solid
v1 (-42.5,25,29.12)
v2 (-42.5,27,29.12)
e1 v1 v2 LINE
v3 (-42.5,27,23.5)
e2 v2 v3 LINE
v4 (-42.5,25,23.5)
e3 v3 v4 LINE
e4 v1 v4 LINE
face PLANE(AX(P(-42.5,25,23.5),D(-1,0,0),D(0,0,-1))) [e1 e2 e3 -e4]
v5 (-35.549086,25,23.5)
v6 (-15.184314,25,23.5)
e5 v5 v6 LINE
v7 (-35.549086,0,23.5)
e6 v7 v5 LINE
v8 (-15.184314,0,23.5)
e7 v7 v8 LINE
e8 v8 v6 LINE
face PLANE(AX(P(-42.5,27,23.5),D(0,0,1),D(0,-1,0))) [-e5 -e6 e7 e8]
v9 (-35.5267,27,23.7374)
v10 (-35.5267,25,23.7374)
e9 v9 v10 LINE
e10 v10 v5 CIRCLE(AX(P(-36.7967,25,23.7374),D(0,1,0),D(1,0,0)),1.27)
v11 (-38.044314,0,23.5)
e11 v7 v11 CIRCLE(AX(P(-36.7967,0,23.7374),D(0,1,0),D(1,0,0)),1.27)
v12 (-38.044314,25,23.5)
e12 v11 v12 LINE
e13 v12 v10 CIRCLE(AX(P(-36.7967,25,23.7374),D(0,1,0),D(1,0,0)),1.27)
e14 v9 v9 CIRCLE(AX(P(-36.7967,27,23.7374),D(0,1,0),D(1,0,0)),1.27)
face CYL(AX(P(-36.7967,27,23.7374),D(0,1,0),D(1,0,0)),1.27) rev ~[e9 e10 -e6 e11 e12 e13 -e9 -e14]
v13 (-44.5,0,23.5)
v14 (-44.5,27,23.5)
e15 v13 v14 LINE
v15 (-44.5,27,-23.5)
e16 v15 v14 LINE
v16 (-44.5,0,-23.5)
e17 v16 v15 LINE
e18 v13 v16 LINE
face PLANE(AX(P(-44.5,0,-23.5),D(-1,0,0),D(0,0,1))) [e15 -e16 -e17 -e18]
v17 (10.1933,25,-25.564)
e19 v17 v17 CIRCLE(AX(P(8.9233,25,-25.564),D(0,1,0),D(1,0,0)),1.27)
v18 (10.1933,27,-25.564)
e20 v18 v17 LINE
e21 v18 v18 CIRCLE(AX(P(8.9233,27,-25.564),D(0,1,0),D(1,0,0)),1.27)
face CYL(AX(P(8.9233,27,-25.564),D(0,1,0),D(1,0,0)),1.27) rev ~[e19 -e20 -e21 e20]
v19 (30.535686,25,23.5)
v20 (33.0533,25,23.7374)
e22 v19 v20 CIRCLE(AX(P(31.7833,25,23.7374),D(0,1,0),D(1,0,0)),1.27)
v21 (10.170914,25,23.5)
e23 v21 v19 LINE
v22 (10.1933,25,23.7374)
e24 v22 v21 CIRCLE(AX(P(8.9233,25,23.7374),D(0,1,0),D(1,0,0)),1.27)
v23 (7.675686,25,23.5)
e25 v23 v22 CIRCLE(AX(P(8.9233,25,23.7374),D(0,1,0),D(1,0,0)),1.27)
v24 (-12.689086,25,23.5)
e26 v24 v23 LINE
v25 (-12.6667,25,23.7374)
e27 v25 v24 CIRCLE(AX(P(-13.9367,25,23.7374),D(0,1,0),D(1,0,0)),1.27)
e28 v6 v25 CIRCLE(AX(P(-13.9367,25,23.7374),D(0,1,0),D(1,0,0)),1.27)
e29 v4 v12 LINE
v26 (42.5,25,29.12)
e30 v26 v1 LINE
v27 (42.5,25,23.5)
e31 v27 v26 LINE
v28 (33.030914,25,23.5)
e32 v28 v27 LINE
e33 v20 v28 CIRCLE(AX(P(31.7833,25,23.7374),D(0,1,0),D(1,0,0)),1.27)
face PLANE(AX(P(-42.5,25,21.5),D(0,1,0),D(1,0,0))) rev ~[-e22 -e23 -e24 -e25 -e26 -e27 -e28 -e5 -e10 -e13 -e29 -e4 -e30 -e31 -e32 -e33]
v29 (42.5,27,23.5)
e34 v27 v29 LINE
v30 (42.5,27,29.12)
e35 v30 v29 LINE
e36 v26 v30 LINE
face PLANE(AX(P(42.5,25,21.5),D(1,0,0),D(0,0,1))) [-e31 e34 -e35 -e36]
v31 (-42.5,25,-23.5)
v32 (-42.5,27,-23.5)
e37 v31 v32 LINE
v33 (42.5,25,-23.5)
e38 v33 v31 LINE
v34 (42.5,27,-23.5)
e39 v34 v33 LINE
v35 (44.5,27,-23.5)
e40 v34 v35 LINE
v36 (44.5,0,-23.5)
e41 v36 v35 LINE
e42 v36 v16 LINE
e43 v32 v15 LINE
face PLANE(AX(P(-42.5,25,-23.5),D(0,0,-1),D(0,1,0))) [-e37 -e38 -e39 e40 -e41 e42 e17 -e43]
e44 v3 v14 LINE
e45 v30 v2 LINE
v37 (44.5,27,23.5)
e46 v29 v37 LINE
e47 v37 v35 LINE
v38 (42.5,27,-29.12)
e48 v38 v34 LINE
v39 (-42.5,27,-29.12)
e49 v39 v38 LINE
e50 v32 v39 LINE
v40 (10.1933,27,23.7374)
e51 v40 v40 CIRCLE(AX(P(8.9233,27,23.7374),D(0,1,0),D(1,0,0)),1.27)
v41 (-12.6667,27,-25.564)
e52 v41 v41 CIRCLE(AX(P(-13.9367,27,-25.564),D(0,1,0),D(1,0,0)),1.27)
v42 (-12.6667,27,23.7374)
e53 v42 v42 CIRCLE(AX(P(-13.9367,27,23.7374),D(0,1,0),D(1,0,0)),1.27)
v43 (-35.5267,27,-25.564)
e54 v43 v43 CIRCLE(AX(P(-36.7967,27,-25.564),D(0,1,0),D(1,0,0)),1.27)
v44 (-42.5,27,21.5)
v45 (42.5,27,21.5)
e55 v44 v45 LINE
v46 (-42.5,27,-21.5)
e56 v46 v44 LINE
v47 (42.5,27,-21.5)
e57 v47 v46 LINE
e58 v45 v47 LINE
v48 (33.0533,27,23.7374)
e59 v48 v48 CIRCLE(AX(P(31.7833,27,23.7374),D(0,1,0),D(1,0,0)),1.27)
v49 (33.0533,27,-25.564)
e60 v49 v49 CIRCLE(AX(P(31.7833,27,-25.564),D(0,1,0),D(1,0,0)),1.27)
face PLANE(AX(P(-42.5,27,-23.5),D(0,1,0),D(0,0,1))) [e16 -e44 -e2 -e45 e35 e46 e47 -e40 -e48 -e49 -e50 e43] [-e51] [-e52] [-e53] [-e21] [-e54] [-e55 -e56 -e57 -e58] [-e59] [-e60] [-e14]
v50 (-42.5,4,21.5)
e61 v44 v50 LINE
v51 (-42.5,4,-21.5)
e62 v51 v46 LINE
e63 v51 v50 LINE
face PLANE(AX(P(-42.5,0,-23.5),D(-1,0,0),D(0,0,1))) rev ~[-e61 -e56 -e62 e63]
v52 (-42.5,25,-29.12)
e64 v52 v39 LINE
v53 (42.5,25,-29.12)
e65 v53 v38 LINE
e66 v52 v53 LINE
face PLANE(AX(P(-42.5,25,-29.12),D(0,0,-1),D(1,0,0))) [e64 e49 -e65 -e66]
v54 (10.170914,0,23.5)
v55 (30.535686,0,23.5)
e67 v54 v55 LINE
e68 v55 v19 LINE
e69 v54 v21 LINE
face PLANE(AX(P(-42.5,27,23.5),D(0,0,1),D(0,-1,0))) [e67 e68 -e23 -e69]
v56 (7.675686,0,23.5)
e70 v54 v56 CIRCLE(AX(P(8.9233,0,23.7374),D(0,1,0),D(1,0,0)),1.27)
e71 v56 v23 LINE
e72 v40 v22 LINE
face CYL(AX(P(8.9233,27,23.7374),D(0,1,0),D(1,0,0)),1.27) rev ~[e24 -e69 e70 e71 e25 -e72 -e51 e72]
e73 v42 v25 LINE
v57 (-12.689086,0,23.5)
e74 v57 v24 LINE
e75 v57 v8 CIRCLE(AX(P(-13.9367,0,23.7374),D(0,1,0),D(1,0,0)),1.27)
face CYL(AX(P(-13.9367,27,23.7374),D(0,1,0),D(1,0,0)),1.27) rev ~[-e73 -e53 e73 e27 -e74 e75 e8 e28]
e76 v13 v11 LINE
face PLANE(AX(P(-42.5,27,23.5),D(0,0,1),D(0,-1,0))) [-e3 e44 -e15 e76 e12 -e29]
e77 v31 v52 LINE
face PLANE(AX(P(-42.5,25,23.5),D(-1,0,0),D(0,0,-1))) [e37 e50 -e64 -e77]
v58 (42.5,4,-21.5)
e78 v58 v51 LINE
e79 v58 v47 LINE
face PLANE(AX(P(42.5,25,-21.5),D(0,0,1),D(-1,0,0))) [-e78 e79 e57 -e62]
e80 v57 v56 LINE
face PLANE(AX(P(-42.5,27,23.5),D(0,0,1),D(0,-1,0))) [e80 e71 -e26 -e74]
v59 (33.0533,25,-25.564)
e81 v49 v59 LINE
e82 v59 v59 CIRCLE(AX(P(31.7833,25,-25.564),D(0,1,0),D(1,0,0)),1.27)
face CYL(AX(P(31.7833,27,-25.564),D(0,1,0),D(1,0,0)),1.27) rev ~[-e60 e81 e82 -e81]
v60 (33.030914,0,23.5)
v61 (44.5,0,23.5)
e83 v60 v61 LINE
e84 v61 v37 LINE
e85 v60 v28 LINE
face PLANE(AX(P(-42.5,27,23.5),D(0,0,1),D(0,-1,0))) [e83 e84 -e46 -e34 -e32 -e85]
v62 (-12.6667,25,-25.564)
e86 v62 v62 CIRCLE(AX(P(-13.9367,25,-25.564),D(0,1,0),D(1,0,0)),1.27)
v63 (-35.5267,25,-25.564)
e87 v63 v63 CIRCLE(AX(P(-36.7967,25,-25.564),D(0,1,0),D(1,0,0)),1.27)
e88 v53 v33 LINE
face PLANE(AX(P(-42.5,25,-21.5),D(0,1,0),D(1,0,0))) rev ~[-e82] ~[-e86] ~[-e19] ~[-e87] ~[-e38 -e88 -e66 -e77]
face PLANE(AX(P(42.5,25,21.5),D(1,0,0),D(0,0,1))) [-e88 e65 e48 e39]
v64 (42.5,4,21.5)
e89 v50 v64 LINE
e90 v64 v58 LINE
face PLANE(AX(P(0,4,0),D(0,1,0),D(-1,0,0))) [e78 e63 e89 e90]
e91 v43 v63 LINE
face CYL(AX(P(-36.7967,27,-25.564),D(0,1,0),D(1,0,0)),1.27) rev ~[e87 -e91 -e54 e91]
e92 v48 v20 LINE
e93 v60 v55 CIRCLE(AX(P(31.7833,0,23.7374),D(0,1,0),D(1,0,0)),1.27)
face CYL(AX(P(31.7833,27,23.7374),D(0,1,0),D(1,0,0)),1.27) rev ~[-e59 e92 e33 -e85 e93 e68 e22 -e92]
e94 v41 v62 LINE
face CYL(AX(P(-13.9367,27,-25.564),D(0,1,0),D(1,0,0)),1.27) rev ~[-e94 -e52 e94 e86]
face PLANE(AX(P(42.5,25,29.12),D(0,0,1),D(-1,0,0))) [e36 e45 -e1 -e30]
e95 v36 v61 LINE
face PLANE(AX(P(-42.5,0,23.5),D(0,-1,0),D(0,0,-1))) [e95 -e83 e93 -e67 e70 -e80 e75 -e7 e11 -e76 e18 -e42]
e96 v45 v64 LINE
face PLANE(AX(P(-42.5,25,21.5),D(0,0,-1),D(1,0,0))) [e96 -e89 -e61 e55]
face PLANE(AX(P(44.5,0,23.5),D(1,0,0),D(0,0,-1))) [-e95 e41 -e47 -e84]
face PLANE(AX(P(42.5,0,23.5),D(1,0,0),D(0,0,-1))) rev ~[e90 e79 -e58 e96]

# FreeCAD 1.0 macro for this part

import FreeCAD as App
import Part
import Sketcher

V = App.Vector

doc = App.newDocument("Part")
params = doc.addObject("Spreadsheet::Sheet", "Params")
for row, (alias, value) in enumerate([
    ("sketch1_width", "85 mm"),
    ("sketch1_height", "43 mm"),
    ("pad1_length", "4 mm"),
    ("sketch2_height", "25 mm"),
    ("sketch2_width", "85 mm"),
    ("pad2_length", "2 mm"),
    ("sketch3_width", "85 mm"),
    ("sketch3_height", "25 mm"),
    ("pad3_length", "2 mm"),
    ("sketch4_height", "7.62 mm"),
    ("sketch4_width", "85 mm"),
    ("pad4_length", "2 mm"),
    ("sketch5_height", "7.62 mm"),
    ("sketch5_width", "85 mm"),
    ("pad5_length", "2 mm"),
    ("sketch6_width", "27 mm"),
    ("sketch6_height", "47 mm"),
    ("pad6_length", "2 mm"),
    ("sketch7_width", "27 mm"),
    ("sketch7_height", "47 mm"),
    ("pad7_length", "2 mm"),
    ("sketch8_diameter", "2.54 mm"),
], start=1):
    params.set(f"A{row}", alias)
    params.set(f"B{row}", "=" + value)
    params.setAlias(f"B{row}", alias)

body = doc.addObject("PartDesign::Body", "Body")

# Sketch on XZ plane
sketch1 = body.newObject("Sketcher::SketchObject", "Sketch")
sketch1.AttachmentSupport = (doc.getObject("XZ_Plane"), [""])
sketch1.MapMode = "FlatFace"
sketch1.addGeometry([
    Part.LineSegment(V(-42.5, -21.5, 0), V(-42.5, 21.5, 0)),
    Part.LineSegment(V(-42.5, 21.5, 0), V(42.5, 21.5, 0)),
    Part.LineSegment(V(42.5, 21.5, 0), V(42.5, -21.5, 0)),
    Part.LineSegment(V(42.5, -21.5, 0), V(-42.5, -21.5, 0)),
], False)
sketch1.addConstraint([
    Sketcher.Constraint("Coincident", 0, 2, 1, 1),
    Sketcher.Constraint("Coincident", 1, 2, 2, 1),
    Sketcher.Constraint("Coincident", 2, 2, 3, 1),
    Sketcher.Constraint("Coincident", 3, 2, 0, 1),
    Sketcher.Constraint("Vertical", 0),
    Sketcher.Constraint("Horizontal", 1),
    Sketcher.Constraint("Vertical", 2),
    Sketcher.Constraint("Horizontal", 3),
    Sketcher.Constraint("Symmetric", 0, 2, 2, 2, -1, 1),
    Sketcher.Constraint("DistanceX", 1, 1, 1, 2, 85.0),
    Sketcher.Constraint("DistanceY", 0, 1, 0, 2, 43.0),
])
sketch1.setExpression("Constraints[9]", "Params.sketch1_width")
sketch1.setExpression("Constraints[10]", "Params.sketch1_height")
pad1 = body.newObject("PartDesign::Pad", "Pad")
pad1.Profile = sketch1
pad1.setExpression("Length", "Params.pad1_length")
pad1.Reversed = True

# Sketch on XY plane
sketch2 = body.newObject("Sketcher::SketchObject", "Sketch001")
sketch2.AttachmentSupport = (doc.getObject("XY_Plane"), [""])
sketch2.MapMode = "FlatFace"
sketch2.AttachmentOffset = App.Placement(V(0, 0, 21.5), App.Rotation())
sketch2.addGeometry([
    Part.LineSegment(V(42.5, 25, 0), V(-42.5, 25, 0)),
    Part.LineSegment(V(-42.5, 25, 0), V(-42.5, 0, 0)),
    Part.LineSegment(V(-42.5, 0, 0), V(42.5, 0, 0)),
    Part.LineSegment(V(42.5, 0, 0), V(42.5, 25, 0)),
], False)
sketch2.addConstraint([
    Sketcher.Constraint("Coincident", 0, 2, 1, 1),
    Sketcher.Constraint("Coincident", 1, 2, 2, 1),
    Sketcher.Constraint("Coincident", 2, 2, 3, 1),
    Sketcher.Constraint("Coincident", 3, 2, 0, 1),
    Sketcher.Constraint("Horizontal", 0),
    Sketcher.Constraint("Vertical", 1),
    Sketcher.Constraint("Horizontal", 2),
    Sketcher.Constraint("Vertical", 3),
    Sketcher.Constraint("Symmetric", 1, 2, 2, 2, -1, 1),
    Sketcher.Constraint("DistanceY", 1, 2, 1, 1, 25.0),
    Sketcher.Constraint("DistanceX", 0, 2, 0, 1, 85.0),
])
sketch2.setExpression("Constraints[9]", "Params.sketch2_height")
sketch2.setExpression("Constraints[10]", "Params.sketch2_width")
pad2 = body.newObject("PartDesign::Pad", "Pad001")
pad2.Profile = sketch2
pad2.setExpression("Length", "Params.pad2_length")

# Sketch on XY plane
sketch3 = body.newObject("Sketcher::SketchObject", "Sketch002")
sketch3.AttachmentSupport = (doc.getObject("XY_Plane"), [""])
sketch3.MapMode = "FlatFace"
sketch3.AttachmentOffset = App.Placement(V(0, 0, -21.5), App.Rotation())
sketch3.addGeometry([
    Part.LineSegment(V(-42.5, 25, 0), V(42.5, 25, 0)),
    Part.LineSegment(V(42.5, 25, 0), V(42.5, 0, 0)),
    Part.LineSegment(V(42.5, 0, 0), V(-42.5, 0, 0)),
    Part.LineSegment(V(-42.5, 0, 0), V(-42.5, 25, 0)),
], False)
sketch3.addConstraint([
    Sketcher.Constraint("Coincident", 0, 2, 1, 1),
    Sketcher.Constraint("Coincident", 1, 2, 2, 1),
    Sketcher.Constraint("Coincident", 2, 2, 3, 1),
    Sketcher.Constraint("Coincident", 3, 2, 0, 1),
    Sketcher.Constraint("Horizontal", 0),
    Sketcher.Constraint("Vertical", 1),
    Sketcher.Constraint("Horizontal", 2),
    Sketcher.Constraint("Vertical", 3),
    Sketcher.Constraint("Symmetric", 1, 2, 2, 2, -1, 1),
    Sketcher.Constraint("DistanceX", 0, 1, 0, 2, 85.0),
    Sketcher.Constraint("DistanceY", 1, 2, 1, 1, 25.0),
])
sketch3.setExpression("Constraints[9]", "Params.sketch3_width")
sketch3.setExpression("Constraints[10]", "Params.sketch3_height")
pad3 = body.newObject("PartDesign::Pad", "Pad002")
pad3.Profile = sketch3
pad3.setExpression("Length", "Params.pad3_length")
pad3.Reversed = True

# Sketch on XZ plane
sketch4 = body.newObject("Sketcher::SketchObject", "Sketch003")
sketch4.AttachmentSupport = (doc.getObject("XZ_Plane"), [""])
sketch4.MapMode = "FlatFace"
sketch4.AttachmentOffset = App.Placement(V(0, 0, -25), App.Rotation())
sketch4.addGeometry([
    Part.LineSegment(V(-42.5, -29.12, 0), V(-42.5, -21.5, 0)),
    Part.LineSegment(V(-42.5, -21.5, 0), V(42.5, -21.5, 0)),
    Part.LineSegment(V(42.5, -21.5, 0), V(42.5, -29.12, 0)),
    Part.LineSegment(V(42.5, -29.12, 0), V(-42.5, -29.12, 0)),
], False)
sketch4.addConstraint([
    Sketcher.Constraint("Coincident", 0, 2, 1, 1),
    Sketcher.Constraint("Coincident", 1, 2, 2, 1),
    Sketcher.Constraint("Coincident", 2, 2, 3, 1),
    Sketcher.Constraint("Coincident", 3, 2, 0, 1),
    Sketcher.Constraint("Vertical", 0),
    Sketcher.Constraint("Horizontal", 1),
    Sketcher.Constraint("Vertical", 2),
    Sketcher.Constraint("Horizontal", 3),
    Sketcher.Constraint("DistanceY", 0, 1, 0, 2, 7.62),
    Sketcher.Constraint("DistanceX", 1, 1, 1, 2, 85.0),
    Sketcher.Constraint("DistanceX", 0, 2, -1, 1, 42.5),
    Sketcher.Constraint("DistanceY", 0, 2, -1, 1, 21.5),
])
sketch4.setExpression("Constraints[8]", "Params.sketch4_height")
sketch4.setExpression("Constraints[9]", "Params.sketch4_width")
pad4 = body.newObject("PartDesign::Pad", "Pad003")
pad4.Profile = sketch4
pad4.setExpression("Length", "Params.pad4_length")
pad4.Reversed = True

# Sketch on XZ plane
sketch5 = body.newObject("Sketcher::SketchObject", "Sketch004")
sketch5.AttachmentSupport = (doc.getObject("XZ_Plane"), [""])
sketch5.MapMode = "FlatFace"
sketch5.AttachmentOffset = App.Placement(V(0, 0, -25), App.Rotation())
sketch5.addGeometry([
    Part.LineSegment(V(-42.5, 21.5, 0), V(-42.5, 29.12, 0)),
    Part.LineSegment(V(-42.5, 29.12, 0), V(42.5, 29.12, 0)),
    Part.LineSegment(V(42.5, 29.12, 0), V(42.5, 21.5, 0)),
    Part.LineSegment(V(42.5, 21.5, 0), V(-42.5, 21.5, 0)),
], False)
sketch5.addConstraint([
    Sketcher.Constraint("Coincident", 0, 2, 1, 1),
    Sketcher.Constraint("Coincident", 1, 2, 2, 1),
    Sketcher.Constraint("Coincident", 2, 2, 3, 1),
    Sketcher.Constraint("Coincident", 3, 2, 0, 1),
    Sketcher.Constraint("Vertical", 0),
    Sketcher.Constraint("Horizontal", 1),
    Sketcher.Constraint("Vertical", 2),
    Sketcher.Constraint("Horizontal", 3),
    Sketcher.Constraint("DistanceY", 0, 1, 0, 2, 7.62),
    Sketcher.Constraint("DistanceX", 1, 1, 1, 2, 85.0),
    Sketcher.Constraint("DistanceX", 0, 2, -1, 1, 42.5),
    Sketcher.Constraint("DistanceY", -1, 1, 2, 2, 21.5),
])
sketch5.setExpression("Constraints[8]", "Params.sketch5_height")
sketch5.setExpression("Constraints[9]", "Params.sketch5_width")
pad5 = body.newObject("PartDesign::Pad", "Pad004")
pad5.Profile = sketch5
pad5.setExpression("Length", "Params.pad5_length")
pad5.Reversed = True

# Sketch on YZ plane
sketch6 = body.newObject("Sketcher::SketchObject", "Sketch005")
sketch6.AttachmentSupport = (doc.getObject("YZ_Plane"), [""])
sketch6.MapMode = "FlatFace"
sketch6.AttachmentOffset = App.Placement(V(0, 0, 42.5), App.Rotation())
sketch6.addGeometry([
    Part.LineSegment(V(27, -23.5, 0), V(27, 23.5, 0)),
    Part.LineSegment(V(27, 23.5, 0), V(0, 23.5, 0)),
    Part.LineSegment(V(0, 23.5, 0), V(0, -23.5, 0)),
    Part.LineSegment(V(0, -23.5, 0), V(27, -23.5, 0)),
], False)
sketch6.addConstraint([
    Sketcher.Constraint("Coincident", 0, 2, 1, 1),
    Sketcher.Constraint("Coincident", 1, 2, 2, 1),
    Sketcher.Constraint("Coincident", 2, 2, 3, 1),
    Sketcher.Constraint("Coincident", 3, 2, 0, 1),
    Sketcher.Constraint("Vertical", 0),
    Sketcher.Constraint("Horizontal", 1),
    Sketcher.Constraint("Vertical", 2),
    Sketcher.Constraint("Horizontal", 3),
    Sketcher.Constraint("Symmetric", 1, 2, 2, 2, -1, 1),
    Sketcher.Constraint("DistanceX", 1, 2, 1, 1, 27.0),
    Sketcher.Constraint("DistanceY", 0, 1, 0, 2, 47.0),
])
sketch6.setExpression("Constraints[9]", "Params.sketch6_width")
sketch6.setExpression("Constraints[10]", "Params.sketch6_height")
pad6 = body.newObject("PartDesign::Pad", "Pad005")
pad6.Profile = sketch6
pad6.setExpression("Length", "Params.pad6_length")

# Sketch on YZ plane
sketch7 = body.newObject("Sketcher::SketchObject", "Sketch006")
sketch7.AttachmentSupport = (doc.getObject("YZ_Plane"), [""])
sketch7.MapMode = "FlatFace"
sketch7.AttachmentOffset = App.Placement(V(0, 0, -42.5), App.Rotation())
sketch7.addGeometry([
    Part.LineSegment(V(27, 23.5, 0), V(27, -23.5, 0)),
    Part.LineSegment(V(27, -23.5, 0), V(0, -23.5, 0)),
    Part.LineSegment(V(0, -23.5, 0), V(0, 23.5, 0)),
    Part.LineSegment(V(0, 23.5, 0), V(27, 23.5, 0)),
], False)
sketch7.addConstraint([
    Sketcher.Constraint("Coincident", 0, 2, 1, 1),
    Sketcher.Constraint("Coincident", 1, 2, 2, 1),
    Sketcher.Constraint("Coincident", 2, 2, 3, 1),
    Sketcher.Constraint("Coincident", 3, 2, 0, 1),
    Sketcher.Constraint("Vertical", 0),
    Sketcher.Constraint("Horizontal", 1),
    Sketcher.Constraint("Vertical", 2),
    Sketcher.Constraint("Horizontal", 3),
    Sketcher.Constraint("Symmetric", 1, 2, 2, 2, -1, 1),
    Sketcher.Constraint("DistanceX", 1, 2, 1, 1, 27.0),
    Sketcher.Constraint("DistanceY", 0, 2, 0, 1, 47.0),
])
sketch7.setExpression("Constraints[9]", "Params.sketch7_width")
sketch7.setExpression("Constraints[10]", "Params.sketch7_height")
pad7 = body.newObject("PartDesign::Pad", "Pad006")
pad7.Profile = sketch7
pad7.setExpression("Length", "Params.pad7_length")
pad7.Reversed = True

# Sketch on XZ plane
sketch8 = body.newObject("Sketcher::SketchObject", "Sketch007")
sketch8.AttachmentSupport = (doc.getObject("XZ_Plane"), [""])
sketch8.MapMode = "FlatFace"
sketch8.AttachmentOffset = App.Placement(V(0, 0, -27), App.Rotation())
sketch8.addGeometry([
    Part.Circle(V(31.7833, -25.564, 0), V(0, 0, 1), 1.27),  # 0
    Part.Circle(V(8.9233, -25.564, 0), V(0, 0, 1), 1.27),  # 1
    Part.Circle(V(-13.9367, -25.564, 0), V(0, 0, 1), 1.27),  # 2
    Part.Circle(V(-36.7967, -25.564, 0), V(0, 0, 1), 1.27),  # 3
    Part.Circle(V(31.7833, 23.7374, 0), V(0, 0, 1), 1.27),  # 4
    Part.Circle(V(8.9233, 23.7374, 0), V(0, 0, 1), 1.27),  # 5
    Part.Circle(V(-13.9367, 23.7374, 0), V(0, 0, 1), 1.27),  # 6
    Part.Circle(V(-36.7967, 23.7374, 0), V(0, 0, 1), 1.27),  # 7
], False)
sketch8.addConstraint([
    Sketcher.Constraint("Equal", 0, 1),
    Sketcher.Constraint("Equal", 1, 2),
    Sketcher.Constraint("Equal", 2, 3),
    Sketcher.Constraint("Equal", 3, 4),
    Sketcher.Constraint("Equal", 4, 5),
    Sketcher.Constraint("Equal", 5, 6),
    Sketcher.Constraint("Equal", 6, 7),
    Sketcher.Constraint("Horizontal", 0, 3, 1, 3),
    Sketcher.Constraint("Horizontal", 1, 3, 2, 3),
    Sketcher.Constraint("Horizontal", 2, 3, 3, 3),
    Sketcher.Constraint("Horizontal", 4, 3, 5, 3),
    Sketcher.Constraint("Horizontal", 5, 3, 6, 3),
    Sketcher.Constraint("Horizontal", 6, 3, 7, 3),
    Sketcher.Constraint("Vertical", 0, 3, 4, 3),
    Sketcher.Constraint("Vertical", 1, 3, 5, 3),
    Sketcher.Constraint("Vertical", 2, 3, 6, 3),
    Sketcher.Constraint("Vertical", 3, 3, 7, 3),
    Sketcher.Constraint("Diameter", 0, 2.54),
    Sketcher.Constraint("DistanceX", 1, 3, 0, 3, 22.86),
    Sketcher.Constraint("DistanceX", 2, 3, 1, 3, 22.86),
    Sketcher.Constraint("DistanceX", 3, 3, 2, 3, 22.86),
    Sketcher.Constraint("DistanceY", 0, 3, 4, 3, 49.3014),
    Sketcher.Constraint("DistanceY", 0, 3, -1, 1, 25.564),
    Sketcher.Constraint("DistanceX", -1, 1, 0, 3, 31.7833),
])
sketch8.setExpression("Constraints[17]", "Params.sketch8_diameter")
pocket1 = body.newObject("PartDesign::Pocket", "Pocket")
pocket1.Profile = sketch8
pocket1.Type = "ThroughAll"
pocket1.Reversed = True

doc.recompute()
